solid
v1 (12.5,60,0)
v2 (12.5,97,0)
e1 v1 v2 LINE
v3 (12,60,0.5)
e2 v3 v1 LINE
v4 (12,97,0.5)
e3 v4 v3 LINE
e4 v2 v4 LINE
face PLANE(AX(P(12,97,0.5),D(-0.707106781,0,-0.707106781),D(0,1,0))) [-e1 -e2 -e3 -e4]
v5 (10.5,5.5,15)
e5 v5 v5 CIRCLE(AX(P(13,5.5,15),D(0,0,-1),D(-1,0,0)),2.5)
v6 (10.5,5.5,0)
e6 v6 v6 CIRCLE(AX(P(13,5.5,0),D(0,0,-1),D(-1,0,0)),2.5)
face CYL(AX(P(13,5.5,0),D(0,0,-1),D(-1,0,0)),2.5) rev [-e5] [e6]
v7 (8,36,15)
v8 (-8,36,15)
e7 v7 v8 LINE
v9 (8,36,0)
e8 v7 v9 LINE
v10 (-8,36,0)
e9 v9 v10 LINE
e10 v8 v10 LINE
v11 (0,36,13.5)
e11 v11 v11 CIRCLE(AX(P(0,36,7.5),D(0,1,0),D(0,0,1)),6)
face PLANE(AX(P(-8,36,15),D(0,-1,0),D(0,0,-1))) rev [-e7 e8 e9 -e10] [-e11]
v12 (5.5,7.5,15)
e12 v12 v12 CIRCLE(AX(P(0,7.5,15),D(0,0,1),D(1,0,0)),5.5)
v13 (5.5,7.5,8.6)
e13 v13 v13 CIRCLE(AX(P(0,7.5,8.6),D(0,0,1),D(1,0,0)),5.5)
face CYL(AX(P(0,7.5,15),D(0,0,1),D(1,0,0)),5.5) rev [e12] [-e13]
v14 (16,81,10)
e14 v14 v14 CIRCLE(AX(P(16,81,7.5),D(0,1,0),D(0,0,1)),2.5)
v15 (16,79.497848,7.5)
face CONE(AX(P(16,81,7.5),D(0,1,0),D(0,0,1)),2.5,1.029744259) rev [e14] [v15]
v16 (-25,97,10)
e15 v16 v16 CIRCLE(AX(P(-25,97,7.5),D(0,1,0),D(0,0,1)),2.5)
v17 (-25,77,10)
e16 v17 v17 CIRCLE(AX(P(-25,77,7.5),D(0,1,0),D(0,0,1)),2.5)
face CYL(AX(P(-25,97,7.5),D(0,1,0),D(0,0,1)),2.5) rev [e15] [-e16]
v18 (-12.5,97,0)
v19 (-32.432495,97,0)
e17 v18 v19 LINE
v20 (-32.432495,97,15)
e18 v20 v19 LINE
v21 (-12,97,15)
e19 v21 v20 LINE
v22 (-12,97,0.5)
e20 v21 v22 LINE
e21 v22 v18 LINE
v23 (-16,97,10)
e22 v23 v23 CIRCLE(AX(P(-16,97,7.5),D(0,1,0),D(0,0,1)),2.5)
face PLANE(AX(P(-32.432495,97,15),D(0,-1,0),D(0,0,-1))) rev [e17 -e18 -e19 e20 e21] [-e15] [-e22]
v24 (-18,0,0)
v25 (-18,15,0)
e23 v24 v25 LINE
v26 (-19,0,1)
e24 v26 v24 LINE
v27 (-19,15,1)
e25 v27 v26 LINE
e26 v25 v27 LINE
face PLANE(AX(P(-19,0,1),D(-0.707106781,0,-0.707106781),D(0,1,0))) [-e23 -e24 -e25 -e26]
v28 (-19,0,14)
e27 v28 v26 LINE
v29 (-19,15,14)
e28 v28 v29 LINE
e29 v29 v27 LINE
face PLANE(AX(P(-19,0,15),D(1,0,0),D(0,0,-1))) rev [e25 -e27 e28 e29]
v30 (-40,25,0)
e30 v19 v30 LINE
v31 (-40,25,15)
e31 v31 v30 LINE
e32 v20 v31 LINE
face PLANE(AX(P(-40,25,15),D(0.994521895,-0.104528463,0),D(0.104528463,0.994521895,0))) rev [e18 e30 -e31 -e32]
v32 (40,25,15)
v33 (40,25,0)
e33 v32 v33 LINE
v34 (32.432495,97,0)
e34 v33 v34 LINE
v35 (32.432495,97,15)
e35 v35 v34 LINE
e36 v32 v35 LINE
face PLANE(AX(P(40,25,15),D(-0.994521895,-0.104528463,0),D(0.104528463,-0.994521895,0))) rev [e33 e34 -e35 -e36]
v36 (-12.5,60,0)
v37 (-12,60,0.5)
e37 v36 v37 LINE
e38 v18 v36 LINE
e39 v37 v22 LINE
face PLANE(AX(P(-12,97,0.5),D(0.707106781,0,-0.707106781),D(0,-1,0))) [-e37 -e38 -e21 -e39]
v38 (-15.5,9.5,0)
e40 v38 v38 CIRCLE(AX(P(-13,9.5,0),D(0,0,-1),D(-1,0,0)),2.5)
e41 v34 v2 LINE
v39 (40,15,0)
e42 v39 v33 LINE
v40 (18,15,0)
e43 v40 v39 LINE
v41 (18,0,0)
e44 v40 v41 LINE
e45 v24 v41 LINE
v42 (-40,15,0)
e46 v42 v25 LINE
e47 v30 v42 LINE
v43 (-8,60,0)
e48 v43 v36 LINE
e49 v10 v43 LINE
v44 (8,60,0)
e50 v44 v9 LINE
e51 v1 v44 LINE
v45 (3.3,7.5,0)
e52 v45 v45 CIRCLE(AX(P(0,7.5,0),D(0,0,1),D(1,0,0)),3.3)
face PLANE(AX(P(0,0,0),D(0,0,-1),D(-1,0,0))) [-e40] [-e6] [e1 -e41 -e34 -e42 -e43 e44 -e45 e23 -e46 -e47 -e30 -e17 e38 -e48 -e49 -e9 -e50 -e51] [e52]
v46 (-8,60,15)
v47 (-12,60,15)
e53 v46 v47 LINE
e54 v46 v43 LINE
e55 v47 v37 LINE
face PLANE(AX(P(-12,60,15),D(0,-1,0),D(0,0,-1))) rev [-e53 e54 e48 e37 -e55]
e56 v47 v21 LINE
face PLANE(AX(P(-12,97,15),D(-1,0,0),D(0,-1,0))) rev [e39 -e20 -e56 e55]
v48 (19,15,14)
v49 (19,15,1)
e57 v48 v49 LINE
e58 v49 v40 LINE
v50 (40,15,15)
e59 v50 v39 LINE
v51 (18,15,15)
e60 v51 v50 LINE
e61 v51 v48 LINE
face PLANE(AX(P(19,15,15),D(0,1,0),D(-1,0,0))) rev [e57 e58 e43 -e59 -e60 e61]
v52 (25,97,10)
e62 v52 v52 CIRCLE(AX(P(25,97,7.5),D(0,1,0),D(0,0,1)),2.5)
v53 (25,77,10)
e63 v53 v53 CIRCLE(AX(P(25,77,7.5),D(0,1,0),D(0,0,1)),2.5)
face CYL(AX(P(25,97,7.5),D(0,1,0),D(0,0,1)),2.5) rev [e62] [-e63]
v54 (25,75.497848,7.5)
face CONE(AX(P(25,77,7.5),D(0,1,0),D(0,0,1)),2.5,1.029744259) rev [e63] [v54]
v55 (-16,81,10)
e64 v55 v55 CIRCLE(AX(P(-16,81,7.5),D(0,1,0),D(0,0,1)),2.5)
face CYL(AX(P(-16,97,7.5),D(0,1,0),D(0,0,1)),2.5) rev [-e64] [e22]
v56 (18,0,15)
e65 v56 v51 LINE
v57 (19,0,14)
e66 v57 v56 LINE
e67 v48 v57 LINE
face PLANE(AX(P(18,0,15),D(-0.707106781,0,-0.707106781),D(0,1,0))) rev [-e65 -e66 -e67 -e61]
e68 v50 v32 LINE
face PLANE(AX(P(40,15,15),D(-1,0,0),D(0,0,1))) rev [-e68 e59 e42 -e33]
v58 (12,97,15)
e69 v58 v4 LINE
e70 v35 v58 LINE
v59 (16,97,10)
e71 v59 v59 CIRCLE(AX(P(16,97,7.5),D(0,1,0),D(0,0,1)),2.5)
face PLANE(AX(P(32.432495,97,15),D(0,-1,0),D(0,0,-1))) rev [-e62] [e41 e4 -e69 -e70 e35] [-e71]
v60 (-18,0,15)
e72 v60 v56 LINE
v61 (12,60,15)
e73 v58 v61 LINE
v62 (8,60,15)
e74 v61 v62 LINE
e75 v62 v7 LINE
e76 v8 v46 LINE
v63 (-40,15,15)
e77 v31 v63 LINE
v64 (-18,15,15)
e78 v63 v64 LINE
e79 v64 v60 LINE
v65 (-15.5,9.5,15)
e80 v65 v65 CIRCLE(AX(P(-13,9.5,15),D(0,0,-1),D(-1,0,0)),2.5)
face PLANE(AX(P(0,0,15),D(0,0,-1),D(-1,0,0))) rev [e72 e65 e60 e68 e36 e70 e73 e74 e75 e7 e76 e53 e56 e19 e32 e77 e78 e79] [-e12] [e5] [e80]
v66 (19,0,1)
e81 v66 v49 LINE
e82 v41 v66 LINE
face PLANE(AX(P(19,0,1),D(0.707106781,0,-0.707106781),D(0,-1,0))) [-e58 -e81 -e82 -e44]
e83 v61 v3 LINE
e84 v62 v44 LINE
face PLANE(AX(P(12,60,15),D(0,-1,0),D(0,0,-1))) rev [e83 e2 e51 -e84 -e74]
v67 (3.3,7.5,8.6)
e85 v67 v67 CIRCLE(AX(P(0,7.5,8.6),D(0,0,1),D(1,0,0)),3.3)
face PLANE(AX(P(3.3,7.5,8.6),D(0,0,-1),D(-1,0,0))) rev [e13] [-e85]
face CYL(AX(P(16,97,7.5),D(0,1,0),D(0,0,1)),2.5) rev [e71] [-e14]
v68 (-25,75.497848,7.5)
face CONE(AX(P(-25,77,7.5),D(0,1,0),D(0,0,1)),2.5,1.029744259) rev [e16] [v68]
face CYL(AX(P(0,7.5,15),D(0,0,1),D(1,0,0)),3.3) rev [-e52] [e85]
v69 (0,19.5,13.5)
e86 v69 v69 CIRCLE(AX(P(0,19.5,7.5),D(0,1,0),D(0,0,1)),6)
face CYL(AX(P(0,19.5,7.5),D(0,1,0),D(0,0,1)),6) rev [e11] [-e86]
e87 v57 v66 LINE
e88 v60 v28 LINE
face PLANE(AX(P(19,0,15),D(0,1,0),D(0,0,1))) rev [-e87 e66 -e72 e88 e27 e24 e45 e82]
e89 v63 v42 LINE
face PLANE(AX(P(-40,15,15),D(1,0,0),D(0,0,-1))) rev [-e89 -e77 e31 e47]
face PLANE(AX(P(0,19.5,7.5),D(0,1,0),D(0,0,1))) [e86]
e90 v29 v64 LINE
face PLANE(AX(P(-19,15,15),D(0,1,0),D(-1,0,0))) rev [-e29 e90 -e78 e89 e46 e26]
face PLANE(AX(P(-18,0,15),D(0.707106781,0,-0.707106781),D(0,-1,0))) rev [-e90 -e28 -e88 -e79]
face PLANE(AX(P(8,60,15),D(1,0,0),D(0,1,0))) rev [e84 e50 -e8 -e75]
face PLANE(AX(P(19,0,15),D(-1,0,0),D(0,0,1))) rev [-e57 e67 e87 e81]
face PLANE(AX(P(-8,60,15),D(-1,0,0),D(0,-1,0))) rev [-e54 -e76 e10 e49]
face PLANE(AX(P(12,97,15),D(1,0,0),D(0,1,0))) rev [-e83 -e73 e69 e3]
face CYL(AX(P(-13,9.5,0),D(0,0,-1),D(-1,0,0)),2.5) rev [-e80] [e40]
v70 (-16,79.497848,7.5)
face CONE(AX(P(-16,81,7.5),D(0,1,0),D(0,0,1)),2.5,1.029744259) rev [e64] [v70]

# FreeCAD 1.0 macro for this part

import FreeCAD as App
import Part
import Sketcher

V = App.Vector
Q = App.Units.Quantity


def edges_at(feature, points):
    """Names of the edges that pass closest to the given points."""
    edges = feature.Shape.Edges
    near = lambda p: min(range(len(edges)), key=lambda i: edges[i].distToShape(Part.Vertex(*p))[0])
    return sorted({f"Edge{near(p) + 1}" for p in points})

doc = App.newDocument("Part")
body = doc.addObject("PartDesign::Body", "Body")

# Sketch on XY plane
sketch1 = body.newObject("Sketcher::SketchObject", "Sketch")
sketch1.AttachmentSupport = (doc.getObject("XY_Plane"), [""])
sketch1.MapMode = "FlatFace"
sketch1.addGeometry([
    Part.LineSegment(V(-19, 0, 0), V(19, 0, 0)),  # 0
    Part.LineSegment(V(19, 0, 0), V(19, 15, 0)),  # 1
    Part.LineSegment(V(19, 15, 0), V(40, 15, 0)),  # 2
    Part.LineSegment(V(40, 15, 0), V(40, 25, 0)),  # 3
    Part.LineSegment(V(40, 25, 0), V(32.4, 97, 0)),  # 4
    Part.LineSegment(V(32.4, 97, 0), V(12, 97, 0)),  # 5
    Part.LineSegment(V(12, 97, 0), V(12, 60, 0)),  # 6
    Part.LineSegment(V(12, 60, 0), V(8, 60, 0)),  # 7
    Part.LineSegment(V(8, 60, 0), V(8, 36, 0)),  # 8
    Part.LineSegment(V(8, 36, 0), V(-8, 36, 0)),  # 9
    Part.LineSegment(V(-8, 36, 0), V(-8, 60, 0)),  # 10
    Part.LineSegment(V(-8, 60, 0), V(-12, 60, 0)),  # 11
    Part.LineSegment(V(-12, 60, 0), V(-12, 97, 0)),  # 12
    Part.LineSegment(V(-12, 97, 0), V(-32.4, 97, 0)),  # 13
    Part.LineSegment(V(-32.4, 97, 0), V(-40, 25, 0)),  # 14
    Part.LineSegment(V(-40, 25, 0), V(-40, 15, 0)),  # 15
    Part.LineSegment(V(-40, 15, 0), V(-19, 15, 0)),  # 16
    Part.LineSegment(V(-19, 15, 0), V(-19, 0, 0)),  # 17
], False)
sketch1.addConstraint([
    Sketcher.Constraint("Coincident", 0, 2, 1, 1),
    Sketcher.Constraint("Coincident", 1, 2, 2, 1),
    Sketcher.Constraint("Coincident", 2, 2, 3, 1),
    Sketcher.Constraint("Coincident", 3, 2, 4, 1),
    Sketcher.Constraint("Coincident", 4, 2, 5, 1),
    Sketcher.Constraint("Coincident", 5, 2, 6, 1),
    Sketcher.Constraint("Coincident", 6, 2, 7, 1),
    Sketcher.Constraint("Coincident", 7, 2, 8, 1),
    Sketcher.Constraint("Coincident", 8, 2, 9, 1),
    Sketcher.Constraint("Coincident", 9, 2, 10, 1),
    Sketcher.Constraint("Coincident", 10, 2, 11, 1),
    Sketcher.Constraint("Coincident", 11, 2, 12, 1),
    Sketcher.Constraint("Coincident", 12, 2, 13, 1),
    Sketcher.Constraint("Coincident", 13, 2, 14, 1),
    Sketcher.Constraint("Coincident", 14, 2, 15, 1),
    Sketcher.Constraint("Coincident", 15, 2, 16, 1),
    Sketcher.Constraint("Coincident", 16, 2, 17, 1),
    Sketcher.Constraint("Coincident", 17, 2, 0, 1),
    Sketcher.Constraint("Horizontal", 0),
    Sketcher.Constraint("Vertical", 1),
    Sketcher.Constraint("Horizontal", 2),
    Sketcher.Constraint("Vertical", 3),
    Sketcher.Constraint("Horizontal", 5),
    Sketcher.Constraint("Vertical", 6),
    Sketcher.Constraint("Horizontal", 7),
    Sketcher.Constraint("Vertical", 8),
    Sketcher.Constraint("Horizontal", 9),
    Sketcher.Constraint("Vertical", 10),
    Sketcher.Constraint("Horizontal", 11),
    Sketcher.Constraint("Vertical", 12),
    Sketcher.Constraint("Horizontal", 13),
    Sketcher.Constraint("Vertical", 15),
    Sketcher.Constraint("Horizontal", 16),
    Sketcher.Constraint("Vertical", 17),
    Sketcher.Constraint("Symmetric", 0, 2, 17, 2, -1, 1),
    Sketcher.Constraint("Symmetric", 7, 2, 10, 2, -2),
    Sketcher.Constraint("Symmetric", 5, 2, 12, 2, -2),
    Sketcher.Constraint("Symmetric", 3, 2, 14, 2, -2),
    Sketcher.Constraint("Horizontal", 2, 2, 15, 2),
    Sketcher.Constraint("Equal", 5, 13),
    Sketcher.Constraint("DistanceX", 0, 1, 0, 2, 38.0),
    Sketcher.Constraint("DistanceX", 2, 1, 2, 2, 21.0),
    Sketcher.Constraint("DistanceX", 7, 2, 7, 1, 4.0),
    Sketcher.Constraint("DistanceX", 9, 2, 9, 1, 16.0),
    Sketcher.Constraint("DistanceY", 1, 1, 1, 2, 15.0),
    Sketcher.Constraint("DistanceY", 3, 1, 3, 2, 10.0),
    Sketcher.Constraint("DistanceY", 6, 2, 6, 1, 37.0),
    Sketcher.Constraint("DistanceY", 8, 2, 8, 1, 24.0),
    Sketcher.Constraint("Angle", 4, Q("96 deg")),
    Sketcher.Constraint("DistanceY", -1, 1, 4, 2, 97.0),
])
pad1 = body.newObject("PartDesign::Pad", "Pad")
pad1.Profile = sketch1
pad1.Length = 15

# Sketch on XZ plane
sketch2 = body.newObject("Sketcher::SketchObject", "Sketch001")
sketch2.AttachmentSupport = (doc.getObject("XZ_Plane"), [""])
sketch2.MapMode = "FlatFace"
sketch2.AttachmentOffset = App.Placement(V(0, 0, -97), App.Rotation())
sketch2.addGeometry([
    Part.Circle(V(-16, 7.5, 0), V(0, 0, 1), 2.5),
    Part.Circle(V(16, 7.5, 0), V(0, 0, 1), 2.5),
], False)
sketch2.addConstraint([
    Sketcher.Constraint("Equal", 0, 1),
    Sketcher.Constraint("Symmetric", 0, 3, 1, 3, -2),
    Sketcher.Constraint("Diameter", 0, 5.0),
    Sketcher.Constraint("DistanceX", 0, 3, -1, 1, 16.0),
    Sketcher.Constraint("DistanceY", -1, 1, 0, 3, 7.5),
])
doc.recompute()
hole = body.newObject("PartDesign::Hole", "Hole")
hole.Profile = sketch2
hole.ThreadType = "None"
hole.Diameter = 5
hole.DepthType = "Dimension"
hole.Depth = 16
hole.DrillPoint = "Angled"
hole.DrillPointAngle = 118
hole.Reversed = True

# Sketch on XZ plane
sketch3 = body.newObject("Sketcher::SketchObject", "Sketch002")
sketch3.AttachmentSupport = (doc.getObject("XZ_Plane"), [""])
sketch3.MapMode = "FlatFace"
sketch3.AttachmentOffset = App.Placement(V(0, 0, -97), App.Rotation())
sketch3.addGeometry([
    Part.Circle(V(-25, 7.5, 0), V(0, 0, 1), 2.5),
    Part.Circle(V(25, 7.5, 0), V(0, 0, 1), 2.5),
], False)
sketch3.addConstraint([
    Sketcher.Constraint("Equal", 0, 1),
    Sketcher.Constraint("Symmetric", 0, 3, 1, 3, -2),
    Sketcher.Constraint("Diameter", 0, 5.0),
    Sketcher.Constraint("DistanceX", 0, 3, -1, 1, 25.0),
    Sketcher.Constraint("DistanceY", -1, 1, 0, 3, 7.5),
])
doc.recompute()
hole2 = body.newObject("PartDesign::Hole", "Hole001")
hole2.Profile = sketch3
hole2.ThreadType = "None"
hole2.Diameter = 5
hole2.DepthType = "Dimension"
hole2.Depth = 20
hole2.DrillPoint = "Angled"
hole2.DrillPointAngle = 118
hole2.Reversed = True

# Sketch on XZ plane
sketch4 = body.newObject("Sketcher::SketchObject", "Sketch003")
sketch4.AttachmentSupport = (doc.getObject("XZ_Plane"), [""])
sketch4.MapMode = "FlatFace"
sketch4.AttachmentOffset = App.Placement(V(0, 0, -36), App.Rotation())
sketch4.addGeometry(Part.Circle(V(0, 8, 0), V(0, 0, 1), 6), False)
sketch4.addConstraint([
    Sketcher.Constraint("PointOnObject", 0, 3, -2),
    Sketcher.Constraint("Diameter", 0, 12.0),
    Sketcher.Constraint("DistanceY", -1, 1, 0, 3, 7.5),
])
pocket1 = body.newObject("PartDesign::Pocket", "Pocket")
pocket1.Profile = sketch4
pocket1.Length = 16.5
pocket1.Reversed = True

# Sketch on XY plane
sketch5 = body.newObject("Sketcher::SketchObject", "Sketch004")
sketch5.AttachmentSupport = (doc.getObject("XY_Plane"), [""])
sketch5.MapMode = "FlatFace"
sketch5.addGeometry([
    Part.Circle(V(13, 5.5, 0), V(0, 0, 1), 2.5),
    Part.Circle(V(-13, 9.5, 0), V(0, 0, 1), 2.5),
], False)
sketch5.addConstraint([
    Sketcher.Constraint("Equal", 0, 1),
    Sketcher.Constraint("Diameter", 0, 5.0),
    Sketcher.Constraint("DistanceX", -1, 1, 0, 3, 13.0),
    Sketcher.Constraint("DistanceX", 1, 3, -1, 1, 13.0),
    Sketcher.Constraint("DistanceY", 0, 3, 1, 3, 4.0),
    Sketcher.Constraint("DistanceY", -1, 1, 0, 3, 5.5),
])
doc.recompute()
hole3 = body.newObject("PartDesign::Hole", "Hole002")
hole3.Profile = sketch5
hole3.ThreadType = "None"
hole3.Diameter = 5
hole3.DepthType = "ThroughAll"
hole3.Reversed = True

# Sketch on XY plane
sketch6 = body.newObject("Sketcher::SketchObject", "Sketch005")
sketch6.AttachmentSupport = (doc.getObject("XY_Plane"), [""])
sketch6.MapMode = "FlatFace"
sketch6.AttachmentOffset = App.Placement(V(0, 0, 15), App.Rotation())
sketch6.addGeometry(Part.Circle(V(0, 7.5, 0), V(0, 0, 1), 3.3), False)
sketch6.addConstraint([
    Sketcher.Constraint("PointOnObject", 0, 3, -2),
    Sketcher.Constraint("Diameter", 0, 6.6),
    Sketcher.Constraint("DistanceY", -1, 1, 0, 3, 7.5),
])
doc.recompute()
hole4 = body.newObject("PartDesign::Hole", "Hole003")
hole4.Profile = sketch6
hole4.ThreadType = "None"
hole4.Diameter = 6.6
hole4.DepthType = "ThroughAll"
hole4.HoleCutType = "Counterbore"
hole4.HoleCutDiameter = 11
hole4.HoleCutDepth = 6.4
doc.recompute()

chamfer = body.newObject("PartDesign::Chamfer", "Chamfer")
chamfer.Base = (hole4, edges_at(hole4, [
    (-19, 7.5, 15),
    (19, 7.5, 15),
    (19, 7.5, 0),
    (-19, 7.5, 0),
]))
chamfer.Size = 1
doc.recompute()

chamfer2 = body.newObject("PartDesign::Chamfer", "Chamfer001")
chamfer2.Base = (chamfer, edges_at(chamfer, [(-12, 78.5, 0), (12, 78.5, 0)]))
chamfer2.Size = 0.5

doc.recompute()
